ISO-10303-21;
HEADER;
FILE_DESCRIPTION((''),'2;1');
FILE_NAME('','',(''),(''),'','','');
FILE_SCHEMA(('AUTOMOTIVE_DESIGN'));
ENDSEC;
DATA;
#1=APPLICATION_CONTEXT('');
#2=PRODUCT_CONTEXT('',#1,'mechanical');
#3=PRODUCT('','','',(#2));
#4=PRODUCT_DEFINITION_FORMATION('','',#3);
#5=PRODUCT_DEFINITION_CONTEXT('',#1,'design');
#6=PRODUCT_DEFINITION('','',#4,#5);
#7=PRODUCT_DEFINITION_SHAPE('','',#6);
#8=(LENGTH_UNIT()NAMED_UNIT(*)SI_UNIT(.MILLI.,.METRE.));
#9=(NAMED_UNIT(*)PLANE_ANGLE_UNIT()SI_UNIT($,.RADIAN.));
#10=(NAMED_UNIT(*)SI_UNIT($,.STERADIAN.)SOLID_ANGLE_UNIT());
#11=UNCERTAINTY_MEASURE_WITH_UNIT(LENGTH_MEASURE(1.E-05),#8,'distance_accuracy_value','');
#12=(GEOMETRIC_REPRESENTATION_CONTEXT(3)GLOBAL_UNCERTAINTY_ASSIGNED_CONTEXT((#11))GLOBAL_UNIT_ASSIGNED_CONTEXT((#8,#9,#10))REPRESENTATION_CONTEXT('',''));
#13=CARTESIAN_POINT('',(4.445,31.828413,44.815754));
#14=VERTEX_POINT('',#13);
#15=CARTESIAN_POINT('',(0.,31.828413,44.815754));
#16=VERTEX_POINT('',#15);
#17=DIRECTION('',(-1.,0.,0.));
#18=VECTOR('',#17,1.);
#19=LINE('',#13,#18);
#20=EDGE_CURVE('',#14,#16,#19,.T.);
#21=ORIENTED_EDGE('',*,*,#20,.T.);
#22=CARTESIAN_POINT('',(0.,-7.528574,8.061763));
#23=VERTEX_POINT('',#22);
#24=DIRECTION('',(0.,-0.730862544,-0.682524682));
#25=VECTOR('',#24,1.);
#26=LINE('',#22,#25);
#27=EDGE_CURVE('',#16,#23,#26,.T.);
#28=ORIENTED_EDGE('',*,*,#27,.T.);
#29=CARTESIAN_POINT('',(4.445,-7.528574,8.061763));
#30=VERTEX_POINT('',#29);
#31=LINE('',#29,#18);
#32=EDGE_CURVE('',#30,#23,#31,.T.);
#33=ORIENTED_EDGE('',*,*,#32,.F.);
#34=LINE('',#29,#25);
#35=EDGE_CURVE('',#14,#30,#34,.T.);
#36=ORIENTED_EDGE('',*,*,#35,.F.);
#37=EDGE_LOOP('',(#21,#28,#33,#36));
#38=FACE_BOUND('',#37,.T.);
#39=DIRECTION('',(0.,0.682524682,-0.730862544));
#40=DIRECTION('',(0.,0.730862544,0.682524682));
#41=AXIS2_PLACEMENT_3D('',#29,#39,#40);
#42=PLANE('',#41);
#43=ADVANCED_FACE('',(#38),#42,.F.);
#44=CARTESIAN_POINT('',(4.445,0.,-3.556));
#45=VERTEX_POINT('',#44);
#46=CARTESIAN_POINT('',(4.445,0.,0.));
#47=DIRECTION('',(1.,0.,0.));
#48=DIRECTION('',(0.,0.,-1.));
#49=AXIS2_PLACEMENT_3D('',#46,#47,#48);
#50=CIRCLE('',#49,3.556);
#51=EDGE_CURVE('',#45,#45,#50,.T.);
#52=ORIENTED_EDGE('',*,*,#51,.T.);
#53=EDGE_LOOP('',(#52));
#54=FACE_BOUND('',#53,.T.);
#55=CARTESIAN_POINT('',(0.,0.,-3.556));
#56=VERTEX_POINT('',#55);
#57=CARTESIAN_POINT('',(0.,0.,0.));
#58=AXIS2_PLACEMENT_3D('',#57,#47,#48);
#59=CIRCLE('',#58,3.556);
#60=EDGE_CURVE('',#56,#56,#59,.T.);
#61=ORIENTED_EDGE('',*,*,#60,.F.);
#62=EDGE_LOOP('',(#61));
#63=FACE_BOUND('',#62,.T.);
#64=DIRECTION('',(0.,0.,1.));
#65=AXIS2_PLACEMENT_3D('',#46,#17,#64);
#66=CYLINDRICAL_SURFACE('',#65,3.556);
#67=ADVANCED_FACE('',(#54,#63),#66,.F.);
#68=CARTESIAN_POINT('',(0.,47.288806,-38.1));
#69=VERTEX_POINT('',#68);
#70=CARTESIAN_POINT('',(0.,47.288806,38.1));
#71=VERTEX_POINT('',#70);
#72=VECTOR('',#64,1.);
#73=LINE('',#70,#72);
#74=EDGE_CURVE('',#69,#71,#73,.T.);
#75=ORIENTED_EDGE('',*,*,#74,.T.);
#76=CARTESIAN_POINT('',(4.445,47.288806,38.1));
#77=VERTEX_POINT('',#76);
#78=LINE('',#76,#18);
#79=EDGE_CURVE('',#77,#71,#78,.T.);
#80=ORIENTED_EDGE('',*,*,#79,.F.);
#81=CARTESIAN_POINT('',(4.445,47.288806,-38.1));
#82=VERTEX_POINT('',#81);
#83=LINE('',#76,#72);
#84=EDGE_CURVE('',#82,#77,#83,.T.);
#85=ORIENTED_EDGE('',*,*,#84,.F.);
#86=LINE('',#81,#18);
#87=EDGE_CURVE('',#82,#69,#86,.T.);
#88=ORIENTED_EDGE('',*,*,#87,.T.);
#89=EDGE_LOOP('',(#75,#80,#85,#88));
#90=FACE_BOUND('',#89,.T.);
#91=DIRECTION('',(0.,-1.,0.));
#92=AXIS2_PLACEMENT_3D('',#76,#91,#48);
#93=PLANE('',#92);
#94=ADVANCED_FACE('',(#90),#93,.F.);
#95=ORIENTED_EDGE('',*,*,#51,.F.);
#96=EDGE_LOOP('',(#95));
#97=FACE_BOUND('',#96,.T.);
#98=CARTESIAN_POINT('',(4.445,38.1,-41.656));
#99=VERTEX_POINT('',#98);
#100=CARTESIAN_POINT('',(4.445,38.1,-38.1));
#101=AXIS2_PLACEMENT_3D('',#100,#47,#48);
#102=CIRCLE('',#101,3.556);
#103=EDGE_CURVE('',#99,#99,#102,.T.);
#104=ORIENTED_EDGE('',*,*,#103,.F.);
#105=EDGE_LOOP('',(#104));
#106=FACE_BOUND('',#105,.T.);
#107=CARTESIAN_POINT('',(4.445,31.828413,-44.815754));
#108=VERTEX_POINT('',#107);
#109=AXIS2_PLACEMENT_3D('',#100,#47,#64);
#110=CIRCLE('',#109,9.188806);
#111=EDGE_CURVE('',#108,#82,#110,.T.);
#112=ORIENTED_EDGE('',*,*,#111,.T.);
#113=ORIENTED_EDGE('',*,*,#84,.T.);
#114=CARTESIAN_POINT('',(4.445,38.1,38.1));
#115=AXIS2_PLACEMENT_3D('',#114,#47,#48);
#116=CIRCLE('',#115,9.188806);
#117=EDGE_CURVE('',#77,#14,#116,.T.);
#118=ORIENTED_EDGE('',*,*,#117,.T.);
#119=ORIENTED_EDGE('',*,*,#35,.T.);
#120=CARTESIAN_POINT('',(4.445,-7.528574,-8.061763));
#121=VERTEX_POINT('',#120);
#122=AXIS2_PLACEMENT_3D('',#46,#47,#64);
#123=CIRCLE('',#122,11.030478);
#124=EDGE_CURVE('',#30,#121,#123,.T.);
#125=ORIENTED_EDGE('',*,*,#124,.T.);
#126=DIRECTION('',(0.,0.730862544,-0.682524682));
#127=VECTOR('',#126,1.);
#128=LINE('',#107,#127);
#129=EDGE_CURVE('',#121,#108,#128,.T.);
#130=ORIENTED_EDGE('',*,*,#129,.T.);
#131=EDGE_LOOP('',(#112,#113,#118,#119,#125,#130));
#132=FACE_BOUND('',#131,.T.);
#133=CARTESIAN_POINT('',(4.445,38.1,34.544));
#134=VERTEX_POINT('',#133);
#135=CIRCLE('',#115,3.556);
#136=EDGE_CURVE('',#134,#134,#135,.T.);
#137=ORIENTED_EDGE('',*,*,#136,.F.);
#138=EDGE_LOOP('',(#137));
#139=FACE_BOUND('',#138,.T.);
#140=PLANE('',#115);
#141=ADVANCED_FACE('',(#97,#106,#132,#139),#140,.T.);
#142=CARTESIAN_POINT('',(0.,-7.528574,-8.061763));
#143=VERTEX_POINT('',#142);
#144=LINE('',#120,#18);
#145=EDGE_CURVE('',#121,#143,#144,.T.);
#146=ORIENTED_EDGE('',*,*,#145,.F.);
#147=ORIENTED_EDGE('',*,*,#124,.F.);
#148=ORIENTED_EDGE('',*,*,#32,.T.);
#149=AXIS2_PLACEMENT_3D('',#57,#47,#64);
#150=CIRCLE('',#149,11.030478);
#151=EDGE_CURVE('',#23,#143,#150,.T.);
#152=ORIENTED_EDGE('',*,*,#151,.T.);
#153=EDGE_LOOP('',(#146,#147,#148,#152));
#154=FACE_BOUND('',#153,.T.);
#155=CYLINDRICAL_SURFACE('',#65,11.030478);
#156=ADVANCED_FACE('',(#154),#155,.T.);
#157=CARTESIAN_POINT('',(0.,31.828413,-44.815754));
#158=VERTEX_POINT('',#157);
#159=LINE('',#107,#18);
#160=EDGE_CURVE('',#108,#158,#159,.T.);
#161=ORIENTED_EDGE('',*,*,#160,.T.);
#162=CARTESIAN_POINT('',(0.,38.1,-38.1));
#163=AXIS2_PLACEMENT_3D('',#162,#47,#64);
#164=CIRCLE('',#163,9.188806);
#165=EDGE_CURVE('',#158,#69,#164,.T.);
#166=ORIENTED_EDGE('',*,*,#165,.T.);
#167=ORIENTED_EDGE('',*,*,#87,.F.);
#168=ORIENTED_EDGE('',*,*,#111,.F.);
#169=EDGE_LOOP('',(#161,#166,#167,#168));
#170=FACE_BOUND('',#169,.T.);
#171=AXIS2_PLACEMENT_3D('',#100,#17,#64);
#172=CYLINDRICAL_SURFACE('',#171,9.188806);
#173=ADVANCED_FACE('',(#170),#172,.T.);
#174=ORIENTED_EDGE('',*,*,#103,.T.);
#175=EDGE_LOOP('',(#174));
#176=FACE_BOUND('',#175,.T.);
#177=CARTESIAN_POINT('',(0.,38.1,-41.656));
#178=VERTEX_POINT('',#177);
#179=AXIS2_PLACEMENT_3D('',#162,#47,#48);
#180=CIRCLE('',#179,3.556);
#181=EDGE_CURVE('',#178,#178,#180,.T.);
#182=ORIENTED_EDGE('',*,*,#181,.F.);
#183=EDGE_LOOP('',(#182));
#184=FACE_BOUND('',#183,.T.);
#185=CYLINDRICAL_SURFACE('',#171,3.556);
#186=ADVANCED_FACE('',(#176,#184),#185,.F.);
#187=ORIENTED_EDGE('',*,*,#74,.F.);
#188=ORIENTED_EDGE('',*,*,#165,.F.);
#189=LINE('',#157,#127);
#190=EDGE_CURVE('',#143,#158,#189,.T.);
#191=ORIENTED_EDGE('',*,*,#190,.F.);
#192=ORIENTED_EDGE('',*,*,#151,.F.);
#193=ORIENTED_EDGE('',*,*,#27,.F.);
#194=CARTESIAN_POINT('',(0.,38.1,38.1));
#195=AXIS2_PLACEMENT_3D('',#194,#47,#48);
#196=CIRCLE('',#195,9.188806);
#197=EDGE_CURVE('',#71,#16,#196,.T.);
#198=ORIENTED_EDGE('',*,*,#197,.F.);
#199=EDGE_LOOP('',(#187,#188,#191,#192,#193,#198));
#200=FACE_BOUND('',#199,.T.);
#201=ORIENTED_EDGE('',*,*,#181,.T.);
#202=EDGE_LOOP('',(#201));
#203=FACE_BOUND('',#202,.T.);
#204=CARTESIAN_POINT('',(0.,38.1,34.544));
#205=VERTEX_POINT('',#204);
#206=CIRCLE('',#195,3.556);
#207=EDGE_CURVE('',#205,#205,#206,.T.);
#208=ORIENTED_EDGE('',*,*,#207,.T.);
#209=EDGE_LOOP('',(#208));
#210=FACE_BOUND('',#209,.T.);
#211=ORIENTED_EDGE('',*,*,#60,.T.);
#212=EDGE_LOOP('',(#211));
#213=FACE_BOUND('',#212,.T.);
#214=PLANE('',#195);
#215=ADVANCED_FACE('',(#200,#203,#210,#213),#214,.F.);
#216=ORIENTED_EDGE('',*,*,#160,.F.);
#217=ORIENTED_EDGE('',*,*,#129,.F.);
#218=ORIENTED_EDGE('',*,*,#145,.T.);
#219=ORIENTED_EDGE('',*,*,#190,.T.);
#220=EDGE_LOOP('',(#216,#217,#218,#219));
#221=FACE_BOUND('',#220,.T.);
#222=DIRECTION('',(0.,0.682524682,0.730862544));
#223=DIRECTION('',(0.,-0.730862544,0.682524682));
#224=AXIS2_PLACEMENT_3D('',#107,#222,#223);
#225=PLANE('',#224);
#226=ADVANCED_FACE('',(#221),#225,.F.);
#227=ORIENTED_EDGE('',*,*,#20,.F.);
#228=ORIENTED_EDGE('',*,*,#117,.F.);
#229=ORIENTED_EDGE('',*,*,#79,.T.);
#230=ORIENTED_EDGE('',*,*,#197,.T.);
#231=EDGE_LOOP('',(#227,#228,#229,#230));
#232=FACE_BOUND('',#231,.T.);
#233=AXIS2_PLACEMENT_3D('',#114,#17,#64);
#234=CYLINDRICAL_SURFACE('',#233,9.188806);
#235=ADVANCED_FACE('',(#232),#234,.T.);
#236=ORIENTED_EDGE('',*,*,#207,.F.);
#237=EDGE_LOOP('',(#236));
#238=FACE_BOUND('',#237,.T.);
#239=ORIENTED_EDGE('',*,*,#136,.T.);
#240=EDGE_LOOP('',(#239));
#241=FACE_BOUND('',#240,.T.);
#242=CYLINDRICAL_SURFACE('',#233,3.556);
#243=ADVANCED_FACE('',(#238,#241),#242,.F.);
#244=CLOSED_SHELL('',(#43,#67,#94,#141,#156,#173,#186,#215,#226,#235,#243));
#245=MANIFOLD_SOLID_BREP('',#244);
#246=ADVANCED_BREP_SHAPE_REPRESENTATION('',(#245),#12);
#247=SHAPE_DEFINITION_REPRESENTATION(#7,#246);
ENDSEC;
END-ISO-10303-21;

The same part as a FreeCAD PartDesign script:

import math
import FreeCAD as App
import Part
import Sketcher

V = App.Vector
Q = App.Units.Quantity

doc = App.newDocument("Part")
params = doc.addObject("Spreadsheet::Sheet", "Params")
for row, (alias, value) in enumerate([
    ("sketch1_diameter", "0.28 in"),
    ("sketch1_height", "3 in"),
    ("pad1_length", "0.175 in"),
], start=1):
    params.set(f"A{row}", alias)
    params.set(f"B{row}", "=" + value)
    params.setAlias(f"B{row}", alias)

body = doc.addObject("PartDesign::Body", "Body")

# Sketch on YZ plane
sketch1 = doc.addObject("Sketcher::SketchObject", "Sketch")
body.addObject(sketch1)
sketch1.AttachmentSupport = (doc.YZ_Plane, [""])
sketch1.MapMode = "FlatFace"
sketch1.addGeometry([
    Part.LineSegment(V(47.3, -38.1, 0), V(47.3, 38.1, 0)),  # 0
    Part.ArcOfCircle(Part.Circle(V(38.1, 38.1, 0), V(0, 0, 1), 9.2), math.radians(0), math.radians(133)),  # 1
    Part.LineSegment(V(31.8, 44.8, 0), V(-7.5, 8.1, 0)),  # 2
    Part.ArcOfCircle(Part.Circle(V(0, 0, 0), V(0, 0, 1), 11), math.radians(133), math.radians(227)),  # 3
    Part.LineSegment(V(-7.5, -8.1, 0), V(31.8, -44.8, 0)),  # 4
    Part.ArcOfCircle(Part.Circle(V(38.1, -38.1, 0), V(0, 0, 1), 9.2), math.radians(-133), math.radians(0)),  # 5
    Part.Circle(V(0, 0, 0), V(0, 0, 1), 3.6),  # 6
    Part.Circle(V(38.1, -38.1, 0), V(0, 0, 1), 3.6),  # 7
    Part.Circle(V(38.1, 38.1, 0), V(0, 0, 1), 3.6),  # 8
], False)
sketch1.addConstraint([
    Sketcher.Constraint("Tangent", 0, 2, 1, 1),
    Sketcher.Constraint("Tangent", 1, 2, 2, 1),
    Sketcher.Constraint("Tangent", 2, 2, 3, 1),
    Sketcher.Constraint("Tangent", 3, 2, 4, 1),
    Sketcher.Constraint("Tangent", 4, 2, 5, 1),
    Sketcher.Constraint("Tangent", 5, 2, 0, 1),
    Sketcher.Constraint("Vertical", 0),
    Sketcher.Constraint("Coincident", 3, 3, -1, 1),
    Sketcher.Constraint("Coincident", 6, 3, -1, 1),
    Sketcher.Constraint("Coincident", 7, 3, 5, 3),
    Sketcher.Constraint("Coincident", 8, 3, 1, 3),
    Sketcher.Constraint("Equal", 1, 5),
    Sketcher.Constraint("Equal", 6, 7),
    Sketcher.Constraint("Equal", 7, 8),
    Sketcher.Constraint("Vertical", 2, 2, 3, 2),
    Sketcher.Constraint("Diameter", 6, Q("0.28 in")),
    Sketcher.Constraint("DistanceY", 0, 1, 0, 2, Q("3 in")),
    Sketcher.Constraint("DistanceX", -1, 1, 1, 3, Q("1.5 in")),
    Sketcher.Constraint("Radius", 3, Q("11.030478 mm")),
    Sketcher.Constraint("Radius", 1, Q("9.188806 mm")),
])
sketch1.setExpression("Constraints[15]", "Params.sketch1_diameter")
sketch1.setExpression("Constraints[16]", "Params.sketch1_height")
pad1 = doc.addObject("PartDesign::Pad", "Pad")
body.addObject(pad1)
pad1.Profile = sketch1
pad1.setExpression("Length", "Params.pad1_length")

doc.recompute()
